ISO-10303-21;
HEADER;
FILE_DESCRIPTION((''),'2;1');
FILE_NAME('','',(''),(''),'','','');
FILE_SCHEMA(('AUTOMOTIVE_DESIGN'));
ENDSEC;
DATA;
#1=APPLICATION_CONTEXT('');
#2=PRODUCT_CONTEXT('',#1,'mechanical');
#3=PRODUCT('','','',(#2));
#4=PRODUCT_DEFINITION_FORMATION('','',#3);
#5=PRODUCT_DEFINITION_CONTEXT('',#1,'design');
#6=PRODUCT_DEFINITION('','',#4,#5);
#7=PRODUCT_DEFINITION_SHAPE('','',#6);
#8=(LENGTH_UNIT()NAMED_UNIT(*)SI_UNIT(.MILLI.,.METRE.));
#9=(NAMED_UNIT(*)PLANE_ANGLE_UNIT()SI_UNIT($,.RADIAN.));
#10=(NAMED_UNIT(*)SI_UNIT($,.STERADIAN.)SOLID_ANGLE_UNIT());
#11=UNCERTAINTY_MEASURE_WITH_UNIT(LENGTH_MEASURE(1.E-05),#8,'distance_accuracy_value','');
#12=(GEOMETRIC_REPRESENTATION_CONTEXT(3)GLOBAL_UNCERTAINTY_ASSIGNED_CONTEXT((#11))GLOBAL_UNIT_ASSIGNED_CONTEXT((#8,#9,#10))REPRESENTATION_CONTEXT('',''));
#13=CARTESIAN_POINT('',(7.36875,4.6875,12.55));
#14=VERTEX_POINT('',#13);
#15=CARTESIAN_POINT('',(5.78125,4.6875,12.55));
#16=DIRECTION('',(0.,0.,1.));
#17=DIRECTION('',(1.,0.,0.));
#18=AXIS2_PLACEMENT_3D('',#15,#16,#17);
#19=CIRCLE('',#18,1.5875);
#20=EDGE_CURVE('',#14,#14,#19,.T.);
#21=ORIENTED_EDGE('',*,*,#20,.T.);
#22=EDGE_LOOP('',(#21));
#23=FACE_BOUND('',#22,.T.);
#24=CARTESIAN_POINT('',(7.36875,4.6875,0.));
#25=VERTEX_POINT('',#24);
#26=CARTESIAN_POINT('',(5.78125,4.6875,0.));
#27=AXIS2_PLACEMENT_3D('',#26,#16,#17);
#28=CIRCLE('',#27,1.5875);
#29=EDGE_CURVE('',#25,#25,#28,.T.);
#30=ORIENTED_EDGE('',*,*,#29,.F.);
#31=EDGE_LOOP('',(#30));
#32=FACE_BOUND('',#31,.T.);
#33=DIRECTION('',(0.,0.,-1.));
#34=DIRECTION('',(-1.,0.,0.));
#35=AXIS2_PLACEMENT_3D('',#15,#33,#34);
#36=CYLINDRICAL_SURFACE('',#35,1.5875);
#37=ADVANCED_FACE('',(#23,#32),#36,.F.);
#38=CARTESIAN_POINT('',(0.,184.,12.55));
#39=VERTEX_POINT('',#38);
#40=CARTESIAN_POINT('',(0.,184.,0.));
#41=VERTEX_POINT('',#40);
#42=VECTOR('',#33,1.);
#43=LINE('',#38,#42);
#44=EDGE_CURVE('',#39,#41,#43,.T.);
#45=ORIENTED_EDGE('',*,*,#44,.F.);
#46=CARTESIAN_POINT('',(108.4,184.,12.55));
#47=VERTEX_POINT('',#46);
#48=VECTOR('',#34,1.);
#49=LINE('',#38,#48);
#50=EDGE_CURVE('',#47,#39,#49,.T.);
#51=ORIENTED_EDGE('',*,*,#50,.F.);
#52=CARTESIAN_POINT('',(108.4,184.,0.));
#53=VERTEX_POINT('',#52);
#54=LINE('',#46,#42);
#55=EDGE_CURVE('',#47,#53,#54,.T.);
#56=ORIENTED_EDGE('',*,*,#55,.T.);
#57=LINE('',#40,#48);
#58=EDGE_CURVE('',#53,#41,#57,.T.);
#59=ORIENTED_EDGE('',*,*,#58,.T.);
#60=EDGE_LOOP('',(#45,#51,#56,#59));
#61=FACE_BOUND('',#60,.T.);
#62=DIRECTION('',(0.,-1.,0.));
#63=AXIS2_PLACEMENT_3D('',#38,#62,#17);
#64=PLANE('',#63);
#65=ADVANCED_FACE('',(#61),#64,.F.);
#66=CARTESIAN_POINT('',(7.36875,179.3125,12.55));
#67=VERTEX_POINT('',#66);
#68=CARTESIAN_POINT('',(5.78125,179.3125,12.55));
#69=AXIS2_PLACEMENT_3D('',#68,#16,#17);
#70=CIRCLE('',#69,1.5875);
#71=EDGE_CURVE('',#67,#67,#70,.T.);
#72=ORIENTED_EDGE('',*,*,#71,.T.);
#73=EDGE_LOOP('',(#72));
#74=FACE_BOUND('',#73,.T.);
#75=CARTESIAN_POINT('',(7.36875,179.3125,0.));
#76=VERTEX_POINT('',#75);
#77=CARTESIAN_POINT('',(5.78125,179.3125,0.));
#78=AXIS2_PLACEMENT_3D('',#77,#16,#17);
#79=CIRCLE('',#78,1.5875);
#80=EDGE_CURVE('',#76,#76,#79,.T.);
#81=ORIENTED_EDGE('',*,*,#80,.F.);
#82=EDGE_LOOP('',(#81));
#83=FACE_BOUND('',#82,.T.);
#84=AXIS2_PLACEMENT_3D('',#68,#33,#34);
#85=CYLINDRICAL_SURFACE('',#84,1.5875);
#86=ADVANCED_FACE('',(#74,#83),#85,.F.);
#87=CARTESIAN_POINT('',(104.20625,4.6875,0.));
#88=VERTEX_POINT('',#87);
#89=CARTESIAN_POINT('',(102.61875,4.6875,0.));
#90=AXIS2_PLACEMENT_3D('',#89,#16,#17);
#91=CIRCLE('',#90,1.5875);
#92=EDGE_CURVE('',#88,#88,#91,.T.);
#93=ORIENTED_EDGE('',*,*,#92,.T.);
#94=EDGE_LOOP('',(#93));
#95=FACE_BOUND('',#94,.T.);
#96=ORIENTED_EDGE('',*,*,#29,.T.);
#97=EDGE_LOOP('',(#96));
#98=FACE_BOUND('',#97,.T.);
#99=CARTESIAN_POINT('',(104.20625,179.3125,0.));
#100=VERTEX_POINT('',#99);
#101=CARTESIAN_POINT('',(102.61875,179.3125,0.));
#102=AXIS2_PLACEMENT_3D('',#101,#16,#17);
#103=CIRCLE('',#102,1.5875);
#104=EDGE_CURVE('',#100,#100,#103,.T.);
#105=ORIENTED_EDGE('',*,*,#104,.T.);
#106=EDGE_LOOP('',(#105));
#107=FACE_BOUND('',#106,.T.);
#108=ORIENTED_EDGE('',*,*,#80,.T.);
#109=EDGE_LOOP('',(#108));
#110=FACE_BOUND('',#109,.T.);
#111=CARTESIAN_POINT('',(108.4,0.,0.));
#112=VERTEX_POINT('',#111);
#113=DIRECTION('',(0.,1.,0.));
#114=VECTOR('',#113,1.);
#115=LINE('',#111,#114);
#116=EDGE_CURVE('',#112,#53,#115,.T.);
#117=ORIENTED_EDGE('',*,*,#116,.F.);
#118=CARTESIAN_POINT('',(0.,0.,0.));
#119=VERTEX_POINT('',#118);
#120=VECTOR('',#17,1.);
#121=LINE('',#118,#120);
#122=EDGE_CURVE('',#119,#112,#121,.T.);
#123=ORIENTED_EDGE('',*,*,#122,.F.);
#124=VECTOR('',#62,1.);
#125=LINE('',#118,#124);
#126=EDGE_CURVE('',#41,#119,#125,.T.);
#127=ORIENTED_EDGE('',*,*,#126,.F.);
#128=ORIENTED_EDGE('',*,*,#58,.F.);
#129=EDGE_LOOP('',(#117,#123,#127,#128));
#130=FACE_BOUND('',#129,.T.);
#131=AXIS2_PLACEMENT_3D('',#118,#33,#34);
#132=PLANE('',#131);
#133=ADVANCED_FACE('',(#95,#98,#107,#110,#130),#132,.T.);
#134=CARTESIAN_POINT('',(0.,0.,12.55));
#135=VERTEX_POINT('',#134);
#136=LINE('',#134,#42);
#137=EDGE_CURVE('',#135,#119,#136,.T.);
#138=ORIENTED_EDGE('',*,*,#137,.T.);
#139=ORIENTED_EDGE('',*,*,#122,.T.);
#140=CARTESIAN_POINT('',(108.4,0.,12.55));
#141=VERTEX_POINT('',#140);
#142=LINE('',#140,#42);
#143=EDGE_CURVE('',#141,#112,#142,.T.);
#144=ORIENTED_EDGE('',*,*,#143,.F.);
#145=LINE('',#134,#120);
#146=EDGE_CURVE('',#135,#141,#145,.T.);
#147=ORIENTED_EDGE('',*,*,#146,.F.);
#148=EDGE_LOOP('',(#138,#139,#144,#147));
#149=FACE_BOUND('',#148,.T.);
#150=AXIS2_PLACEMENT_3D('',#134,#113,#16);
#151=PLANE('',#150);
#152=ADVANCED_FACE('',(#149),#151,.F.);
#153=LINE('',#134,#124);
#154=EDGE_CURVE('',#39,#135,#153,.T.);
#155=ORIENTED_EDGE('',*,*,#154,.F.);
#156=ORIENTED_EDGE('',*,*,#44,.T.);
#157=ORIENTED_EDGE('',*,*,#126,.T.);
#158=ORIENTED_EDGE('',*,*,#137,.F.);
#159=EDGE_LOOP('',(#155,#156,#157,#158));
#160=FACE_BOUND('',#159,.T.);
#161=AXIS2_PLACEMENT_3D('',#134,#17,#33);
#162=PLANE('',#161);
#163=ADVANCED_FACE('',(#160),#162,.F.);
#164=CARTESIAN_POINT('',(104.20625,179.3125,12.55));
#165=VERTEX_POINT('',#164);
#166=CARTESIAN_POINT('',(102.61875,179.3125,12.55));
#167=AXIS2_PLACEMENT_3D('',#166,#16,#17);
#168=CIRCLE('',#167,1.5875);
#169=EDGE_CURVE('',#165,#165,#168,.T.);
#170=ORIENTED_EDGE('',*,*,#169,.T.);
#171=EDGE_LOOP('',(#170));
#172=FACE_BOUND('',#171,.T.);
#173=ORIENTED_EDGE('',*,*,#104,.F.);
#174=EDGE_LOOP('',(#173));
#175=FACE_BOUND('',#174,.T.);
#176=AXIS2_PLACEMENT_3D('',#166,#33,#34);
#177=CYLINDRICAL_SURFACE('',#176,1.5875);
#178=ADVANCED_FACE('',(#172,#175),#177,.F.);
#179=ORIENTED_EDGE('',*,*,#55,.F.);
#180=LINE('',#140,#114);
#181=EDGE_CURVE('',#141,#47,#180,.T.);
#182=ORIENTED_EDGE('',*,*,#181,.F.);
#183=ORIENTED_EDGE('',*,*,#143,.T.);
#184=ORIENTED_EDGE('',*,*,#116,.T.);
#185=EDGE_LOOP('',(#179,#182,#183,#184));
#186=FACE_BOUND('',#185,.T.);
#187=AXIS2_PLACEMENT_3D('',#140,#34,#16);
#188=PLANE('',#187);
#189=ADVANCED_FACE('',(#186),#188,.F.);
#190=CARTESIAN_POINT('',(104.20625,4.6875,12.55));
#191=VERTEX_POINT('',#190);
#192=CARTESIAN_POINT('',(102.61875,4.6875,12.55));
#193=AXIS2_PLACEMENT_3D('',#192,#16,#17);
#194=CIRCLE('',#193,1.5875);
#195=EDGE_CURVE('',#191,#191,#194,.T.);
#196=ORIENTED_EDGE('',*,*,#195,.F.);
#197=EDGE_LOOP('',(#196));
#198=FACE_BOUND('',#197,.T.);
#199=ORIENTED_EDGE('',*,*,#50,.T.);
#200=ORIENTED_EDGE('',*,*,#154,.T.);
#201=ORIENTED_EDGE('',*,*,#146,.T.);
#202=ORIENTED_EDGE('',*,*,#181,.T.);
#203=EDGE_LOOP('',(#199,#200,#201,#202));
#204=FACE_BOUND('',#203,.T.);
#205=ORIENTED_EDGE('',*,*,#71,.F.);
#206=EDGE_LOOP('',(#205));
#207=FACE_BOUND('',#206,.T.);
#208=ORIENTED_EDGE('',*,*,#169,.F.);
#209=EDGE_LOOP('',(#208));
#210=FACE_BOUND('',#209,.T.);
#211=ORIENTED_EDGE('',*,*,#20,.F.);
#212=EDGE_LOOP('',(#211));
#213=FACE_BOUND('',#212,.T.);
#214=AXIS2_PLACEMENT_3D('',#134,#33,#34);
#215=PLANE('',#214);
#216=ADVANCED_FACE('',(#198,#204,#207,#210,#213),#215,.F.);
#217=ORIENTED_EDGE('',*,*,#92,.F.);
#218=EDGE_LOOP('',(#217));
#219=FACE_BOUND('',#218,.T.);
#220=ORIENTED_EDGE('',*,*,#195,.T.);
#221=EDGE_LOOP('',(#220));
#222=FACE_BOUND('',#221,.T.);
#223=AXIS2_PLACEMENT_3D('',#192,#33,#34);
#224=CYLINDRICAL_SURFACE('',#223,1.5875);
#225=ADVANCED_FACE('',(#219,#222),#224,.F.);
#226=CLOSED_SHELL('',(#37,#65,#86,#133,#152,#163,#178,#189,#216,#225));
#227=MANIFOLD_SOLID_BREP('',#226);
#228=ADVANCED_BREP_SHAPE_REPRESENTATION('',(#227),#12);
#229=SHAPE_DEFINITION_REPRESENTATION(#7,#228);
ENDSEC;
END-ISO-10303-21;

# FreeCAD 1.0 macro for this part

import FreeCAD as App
import Part
import Sketcher
from FreeCAD import Vector
Q = App.Units.Quantity


def add_polygon(sketch, points):
    """Adds a closed chain of lines whose ends are joined by coincident constraints."""
    first, n = sketch.GeometryCount, len(points)
    for a, b in zip(points, points[1:] + points[:1]):
        sketch.addGeometry(Part.LineSegment(App.Vector(*a, 0), App.Vector(*b, 0)), False)
    for i in range(n):
        sketch.addConstraint(Sketcher.Constraint("Coincident", first + i, 2, first + (i + 1) % n, 1))

doc = App.newDocument("Part")
body = doc.addObject("PartDesign::Body", "Body")

sketch1 = body.newObject("Sketcher::SketchObject", "Sketch")
sketch1.AttachmentSupport = (doc.getObject("XY_Plane"), [""])
sketch1.MapMode = "FlatFace"
add_polygon(sketch1, [(0, 184), (0, 0), (108.4, 0), (108.4, 184)])
sketch1.addGeometry(Part.Circle(Vector(5.78125, 4.6875, 0), Vector(0, 0, 1), 1.5875), False)
sketch1.addGeometry(Part.Circle(Vector(102.61875, 4.6875, 0), Vector(0, 0, 1), 1.5875), False)
sketch1.addGeometry(Part.Circle(Vector(5.78125, 179.3125, 0), Vector(0, 0, 1), 1.5875), False)
sketch1.addGeometry(Part.Circle(Vector(102.61875, 179.3125, 0), Vector(0, 0, 1), 1.5875), False)
sketch1.addConstraint([
    Sketcher.Constraint("Vertical", 0),
    Sketcher.Constraint("Horizontal", 1),
    Sketcher.Constraint("Vertical", 2),
    Sketcher.Constraint("Horizontal", 3),
    Sketcher.Constraint("Coincident", 0, 2, -1, 1),
    Sketcher.Constraint("Equal", 4, 5),
    Sketcher.Constraint("Equal", 5, 6),
    Sketcher.Constraint("Equal", 6, 7),
    Sketcher.Constraint("Horizontal", 4, 3, 5, 3),
    Sketcher.Constraint("Horizontal", 6, 3, 7, 3),
    Sketcher.Constraint("Vertical", 4, 3, 6, 3),
    Sketcher.Constraint("Vertical", 5, 3, 7, 3),
    Sketcher.Constraint("DistanceY", 0, 2, 0, 1, Q("184 mm")),
    Sketcher.Constraint("Diameter", 4, Q("3.175 mm")),
    Sketcher.Constraint("DistanceX", 1, 1, 1, 2, Q("108.4 mm")),
    Sketcher.Constraint("DistanceY", 4, 3, 6, 3, Q("174.625 mm")),
    Sketcher.Constraint("DistanceY", -1, 1, 4, 3, Q("4.6875 mm")),
    Sketcher.Constraint("DistanceX", 4, 3, 5, 3, Q("96.8375 mm")),
    Sketcher.Constraint("DistanceX", -1, 1, 4, 3, Q("5.78125 mm")),
])
pad1 = body.newObject("PartDesign::Pad", "Pad")
pad1.Profile = sketch1
pad1.Length = 12.55

doc.recompute()
